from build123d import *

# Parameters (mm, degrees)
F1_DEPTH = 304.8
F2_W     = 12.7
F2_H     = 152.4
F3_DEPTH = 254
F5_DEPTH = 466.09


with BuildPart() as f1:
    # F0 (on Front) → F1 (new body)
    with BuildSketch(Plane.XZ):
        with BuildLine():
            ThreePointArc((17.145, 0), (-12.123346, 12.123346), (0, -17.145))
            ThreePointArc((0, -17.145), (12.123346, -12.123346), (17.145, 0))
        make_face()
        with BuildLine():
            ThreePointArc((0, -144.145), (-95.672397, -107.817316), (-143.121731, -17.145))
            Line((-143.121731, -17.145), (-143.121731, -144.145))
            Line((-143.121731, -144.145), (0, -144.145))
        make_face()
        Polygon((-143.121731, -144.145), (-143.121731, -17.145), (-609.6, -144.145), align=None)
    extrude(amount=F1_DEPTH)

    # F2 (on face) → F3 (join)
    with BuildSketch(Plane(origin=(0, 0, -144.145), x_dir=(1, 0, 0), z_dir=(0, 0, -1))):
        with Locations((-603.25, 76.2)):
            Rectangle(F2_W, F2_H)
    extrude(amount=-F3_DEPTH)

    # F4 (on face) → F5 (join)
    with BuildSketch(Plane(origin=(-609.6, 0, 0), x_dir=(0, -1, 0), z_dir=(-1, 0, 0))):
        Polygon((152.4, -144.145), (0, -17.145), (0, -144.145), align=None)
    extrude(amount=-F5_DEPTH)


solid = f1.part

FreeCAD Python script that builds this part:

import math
import FreeCAD as App
import Part
import Sketcher
from FreeCAD import Vector
Q = App.Units.Quantity


def add_polygon(sketch, points):
    """Adds a closed chain of lines whose ends are joined by coincident constraints."""
    first, n = sketch.GeometryCount, len(points)
    for a, b in zip(points, points[1:] + points[:1]):
        sketch.addGeometry(Part.LineSegment(App.Vector(*a, 0), App.Vector(*b, 0)), False)
    for i in range(n):
        sketch.addConstraint(Sketcher.Constraint("Coincident", first + i, 2, first + (i + 1) % n, 1))

doc = App.newDocument("Part")
body = doc.addObject("PartDesign::Body", "Body")
body.AllowCompound = True

# Sketch on XZ plane
sketch1 = body.newObject("Sketcher::SketchObject", "Sketch")
sketch1.AttachmentSupport = (doc.getObject("XZ_Plane"), [""])
sketch1.MapMode = "FlatFace"
sketch1.addGeometry([
    Part.ArcOfCircle(Part.Circle(Vector(0, 0, 0), Vector(0, 0, 1), 17), math.radians(0), math.radians(270)),  # 0
    Part.ArcOfCircle(Part.Circle(Vector(0, 0, 0), Vector(0, 0, 1), 17), math.radians(-90), math.radians(0)),  # 1
    Part.ArcOfCircle(Part.Circle(Vector(0, 0, 0), Vector(0, 0, 1), 144), math.radians(-173), math.radians(-90)),  # 2
    Part.LineSegment(Vector(-143, -17, 0), Vector(-610, -144, 0)),  # 3
    Part.LineSegment(Vector(-610, -144, 0), Vector(0, -144, 0)),  # 4
], False)
sketch1.addConstraint([
    Sketcher.Constraint("Tangent", 0, 1, 1, 2),
    Sketcher.Constraint("Coincident", 1, 1, 0, 2),
    Sketcher.Constraint("Coincident", 2, 1, 3, 1),
    Sketcher.Constraint("Coincident", 3, 2, 4, 1),
    Sketcher.Constraint("Tangent", 4, 2, 2, 2),
    Sketcher.Constraint("Horizontal", 4),
    Sketcher.Constraint("Coincident", 0, 3, -1, 1),
    Sketcher.Constraint("Coincident", 2, 3, -1, 1),
    Sketcher.Constraint("PointOnObject", 0, 1, -1),
    Sketcher.Constraint("PointOnObject", 1, 1, -2),
    Sketcher.Constraint("Horizontal", 1, 1, 2, 1),
    Sketcher.Constraint("DistanceX", 4, 1, 4, 2, Q("24 in")),
    Sketcher.Constraint("Radius", 0, Q("0.675 in")),
    Sketcher.Constraint("Radius", 2, Q("5.6749999 in")),
])
pad1 = body.newObject("PartDesign::Pad", "Pad")
pad1.Profile = sketch1
pad1.Length = Q("12 in")

# Sketch on XY plane
sketch2 = body.newObject("Sketcher::SketchObject", "Sketch001")
sketch2.AttachmentSupport = (doc.getObject("XY_Plane"), [""])
sketch2.MapMode = "FlatFace"
sketch2.AttachmentOffset = App.Placement(Vector(0, 0, -5.675 * 25.4), App.Rotation())
add_polygon(sketch2, [(-610, -152), (-610, 0), (-597, 0), (-597, -152)])  # lines 0-3
sketch2.addConstraint([
    Sketcher.Constraint("Vertical", 0),
    Sketcher.Constraint("Horizontal", 1),
    Sketcher.Constraint("Vertical", 2),
    Sketcher.Constraint("Horizontal", 3),
    Sketcher.Constraint("PointOnObject", 0, 2, -1),
    Sketcher.Constraint("DistanceY", 0, 1, 0, 2, Q("6 in")),
    Sketcher.Constraint("DistanceX", 1, 1, 1, 2, Q("0.5 in")),
    Sketcher.Constraint("DistanceX", 0, 2, -1, 1, Q("24 in")),
])
pad2 = body.newObject("PartDesign::Pad", "Pad001")
pad2.Profile = sketch2
pad2.Length = Q("10 in")

# Sketch on YZ plane
sketch3 = body.newObject("Sketcher::SketchObject", "Sketch002")
sketch3.AttachmentSupport = (doc.getObject("YZ_Plane"), [""])
sketch3.MapMode = "FlatFace"
sketch3.AttachmentOffset = App.Placement(Vector(0, 0, -24 * 25.4), App.Rotation())
add_polygon(sketch3, [(-152, -144), (0, -17), (0, -144)])  # lines 0-2
sketch3.addConstraint([
    Sketcher.Constraint("Vertical", 1),
    Sketcher.Constraint("Horizontal", 2),
    Sketcher.Constraint("PointOnObject", 0, 2, -2),
    Sketcher.Constraint("DistanceX", 2, 2, 2, 1, Q("6 in")),
    Sketcher.Constraint("DistanceY", 1, 2, 1, 1, Q("5 in")),
    Sketcher.Constraint("DistanceY", 0, 2, -1, 1, Q("0.675 in")),
])
pad3 = body.newObject("PartDesign::Pad", "Pad002")
pad3.Profile = sketch3
pad3.Length = Q("18.35 in")

doc.recompute()
